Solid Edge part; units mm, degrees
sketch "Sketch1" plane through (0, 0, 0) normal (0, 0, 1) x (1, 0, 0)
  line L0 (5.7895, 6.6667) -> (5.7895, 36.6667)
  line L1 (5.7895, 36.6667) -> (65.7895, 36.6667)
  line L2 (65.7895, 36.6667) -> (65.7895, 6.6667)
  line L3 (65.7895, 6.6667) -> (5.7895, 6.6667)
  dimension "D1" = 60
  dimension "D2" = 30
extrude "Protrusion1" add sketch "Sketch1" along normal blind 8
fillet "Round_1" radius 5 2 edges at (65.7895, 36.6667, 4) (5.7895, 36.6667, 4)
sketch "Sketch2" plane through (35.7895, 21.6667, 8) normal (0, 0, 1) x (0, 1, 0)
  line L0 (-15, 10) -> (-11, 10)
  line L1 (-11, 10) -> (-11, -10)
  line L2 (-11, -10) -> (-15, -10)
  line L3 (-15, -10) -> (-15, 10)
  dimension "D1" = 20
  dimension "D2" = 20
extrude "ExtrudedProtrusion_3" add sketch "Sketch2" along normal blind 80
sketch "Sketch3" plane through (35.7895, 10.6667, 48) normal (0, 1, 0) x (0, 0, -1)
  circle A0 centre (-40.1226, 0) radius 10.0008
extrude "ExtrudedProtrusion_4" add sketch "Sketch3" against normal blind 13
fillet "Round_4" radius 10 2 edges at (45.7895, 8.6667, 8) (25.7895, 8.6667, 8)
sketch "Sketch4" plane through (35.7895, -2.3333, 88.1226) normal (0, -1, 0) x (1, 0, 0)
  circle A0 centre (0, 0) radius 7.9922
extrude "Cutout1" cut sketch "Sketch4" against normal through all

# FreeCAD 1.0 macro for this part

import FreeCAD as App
import Part
import Sketcher
from FreeCAD import Vector
Q = App.Units.Quantity


def edges_at(feature, points):
    """Names of the edges that pass closest to the given points."""
    edges = feature.Shape.Edges
    near = lambda p: min(range(len(edges)), key=lambda i: edges[i].distToShape(Part.Vertex(*p))[0])
    return sorted({f"Edge{near(p) + 1}" for p in points})


def add_polygon(sketch, points):
    """Adds a closed chain of lines whose ends are joined by coincident constraints."""
    first, n = sketch.GeometryCount, len(points)
    for a, b in zip(points, points[1:] + points[:1]):
        sketch.addGeometry(Part.LineSegment(App.Vector(*a, 0), App.Vector(*b, 0)), False)
    for i in range(n):
        sketch.addConstraint(Sketcher.Constraint("Coincident", first + i, 2, first + (i + 1) % n, 1))

doc = App.newDocument("Part")
params = doc.addObject("Spreadsheet::Sheet", "Params")
for row, (alias, value) in enumerate([
    ("sketch1_width", "60 mm"),
    ("sketch1_height", "30 mm"),
    ("pad1_length", "8 mm"),
    ("fillet_radius", "5 mm"),
    ("sketch2_width", "20 mm"),
    ("sketch2_height", "4 mm"),
    ("pad2_length", "80 mm"),
    ("pad3_length", "13 mm"),
    ("fillet2_radius", "10 mm"),
], start=1):
    params.set(f"A{row}", alias)
    params.set(f"B{row}", "=" + value)
    params.setAlias(f"B{row}", alias)

body = doc.addObject("PartDesign::Body", "Body")

# Sketch on XY plane
sketch1 = body.newObject("Sketcher::SketchObject", "Sketch")
sketch1.AttachmentSupport = (doc.getObject("XY_Plane"), [""])
sketch1.MapMode = "FlatFace"
add_polygon(sketch1, [(6, 37), (6, 7), (66, 7), (66, 37)])  # lines 0-3
sketch1.addConstraint(Sketcher.Constraint("Vertical", 0))
sketch1.addConstraint(Sketcher.Constraint("Horizontal", 1))
sketch1.addConstraint(Sketcher.Constraint("Vertical", 2))
sketch1.addConstraint(Sketcher.Constraint("Horizontal", 3))
sketch1.addConstraint(Sketcher.Constraint("DistanceX", 1, 1, 1, 2, Q("60 mm")))
sketch1.addConstraint(Sketcher.Constraint("DistanceY", 0, 2, 0, 1, Q("30 mm")))
sketch1.addConstraint(Sketcher.Constraint("DistanceX", -1, 1, 0, 2, Q("5.7895 mm")))
sketch1.addConstraint(Sketcher.Constraint("DistanceY", -1, 1, 0, 2, Q("6.6667 mm")))
sketch1.setExpression("Constraints[8]", "Params.sketch1_width")
sketch1.setExpression("Constraints[9]", "Params.sketch1_height")
pad1 = body.newObject("PartDesign::Pad", "Pad")
pad1.Profile = sketch1
pad1.setExpression("Length", "Params.pad1_length")
doc.recompute()

fillet = body.newObject("PartDesign::Fillet", "Fillet")
fillet.Base = (pad1, edges_at(pad1, [(65.79, 36.667, 4), (5.79, 36.667, 4)]))
fillet.setExpression("Radius", "Params.fillet_radius")

# Sketch on XY plane
sketch2 = body.newObject("Sketcher::SketchObject", "Sketch001")
sketch2.AttachmentSupport = (doc.getObject("XY_Plane"), [""])
sketch2.MapMode = "FlatFace"
sketch2.AttachmentOffset = App.Placement(Vector(0, 0, 8), App.Rotation())
add_polygon(sketch2, [(25.8, 10.7), (25.8, 6.7), (45.8, 6.7), (45.8, 10.7)])  # lines 0-3
sketch2.addConstraint(Sketcher.Constraint("Vertical", 0))
sketch2.addConstraint(Sketcher.Constraint("Horizontal", 1))
sketch2.addConstraint(Sketcher.Constraint("Vertical", 2))
sketch2.addConstraint(Sketcher.Constraint("Horizontal", 3))
sketch2.addConstraint(Sketcher.Constraint("DistanceX", 1, 1, 1, 2, Q("20 mm")))
sketch2.addConstraint(Sketcher.Constraint("DistanceY", 0, 2, 0, 1, Q("4 mm")))
sketch2.addConstraint(Sketcher.Constraint("DistanceX", -1, 1, 0, 2, Q("25.7895 mm")))
sketch2.addConstraint(Sketcher.Constraint("DistanceY", -1, 1, 0, 2, Q("6.6667 mm")))
sketch2.setExpression("Constraints[8]", "Params.sketch2_width")
sketch2.setExpression("Constraints[9]", "Params.sketch2_height")
pad2 = body.newObject("PartDesign::Pad", "Pad001")
pad2.Profile = sketch2
pad2.setExpression("Length", "Params.pad2_length")

# Sketch on XZ plane
sketch3 = body.newObject("Sketcher::SketchObject", "Sketch002")
sketch3.AttachmentSupport = (doc.getObject("XZ_Plane"), [""])
sketch3.MapMode = "FlatFace"
sketch3.AttachmentOffset = App.Placement(Vector(0, 0, -10.6667), App.Rotation())
sketch3.addGeometry(Part.Circle(Vector(36, 88, 0), Vector(0, 0, 1), 10), False)
sketch3.addConstraint(Sketcher.Constraint("Diameter", 0, Q("20.0016 mm")))
sketch3.addConstraint(Sketcher.Constraint("DistanceX", -1, 1, 0, 3, Q("35.7895 mm")))
sketch3.addConstraint(Sketcher.Constraint("DistanceY", -1, 1, 0, 3, Q("88.1226 mm")))
pad3 = body.newObject("PartDesign::Pad", "Pad002")
pad3.Profile = sketch3
pad3.setExpression("Length", "Params.pad3_length")
doc.recompute()

fillet2 = body.newObject("PartDesign::Fillet", "Fillet001")
fillet2.Base = (pad3, edges_at(pad3, [(45.789, 8.667, 8), (25.79, 8.667, 8)]))
fillet2.setExpression("Radius", "Params.fillet2_radius")

# Sketch on XZ plane
sketch4 = body.newObject("Sketcher::SketchObject", "Sketch003")
sketch4.AttachmentSupport = (doc.getObject("XZ_Plane"), [""])
sketch4.MapMode = "FlatFace"
sketch4.AttachmentOffset = App.Placement(Vector(0, 0, 2.3333), App.Rotation())
sketch4.addGeometry(Part.Circle(Vector(36, 88, 0), Vector(0, 0, 1), 8), False)
sketch4.addConstraint(Sketcher.Constraint("Diameter", 0, Q("15.9844 mm")))
sketch4.addConstraint(Sketcher.Constraint("DistanceX", -1, 1, 0, 3, Q("35.7895 mm")))
sketch4.addConstraint(Sketcher.Constraint("DistanceY", -1, 1, 0, 3, Q("88.1226 mm")))
pocket1 = body.newObject("PartDesign::Pocket", "Pocket")
pocket1.Profile = sketch4
pocket1.Type = "ThroughAll"

doc.recompute()
